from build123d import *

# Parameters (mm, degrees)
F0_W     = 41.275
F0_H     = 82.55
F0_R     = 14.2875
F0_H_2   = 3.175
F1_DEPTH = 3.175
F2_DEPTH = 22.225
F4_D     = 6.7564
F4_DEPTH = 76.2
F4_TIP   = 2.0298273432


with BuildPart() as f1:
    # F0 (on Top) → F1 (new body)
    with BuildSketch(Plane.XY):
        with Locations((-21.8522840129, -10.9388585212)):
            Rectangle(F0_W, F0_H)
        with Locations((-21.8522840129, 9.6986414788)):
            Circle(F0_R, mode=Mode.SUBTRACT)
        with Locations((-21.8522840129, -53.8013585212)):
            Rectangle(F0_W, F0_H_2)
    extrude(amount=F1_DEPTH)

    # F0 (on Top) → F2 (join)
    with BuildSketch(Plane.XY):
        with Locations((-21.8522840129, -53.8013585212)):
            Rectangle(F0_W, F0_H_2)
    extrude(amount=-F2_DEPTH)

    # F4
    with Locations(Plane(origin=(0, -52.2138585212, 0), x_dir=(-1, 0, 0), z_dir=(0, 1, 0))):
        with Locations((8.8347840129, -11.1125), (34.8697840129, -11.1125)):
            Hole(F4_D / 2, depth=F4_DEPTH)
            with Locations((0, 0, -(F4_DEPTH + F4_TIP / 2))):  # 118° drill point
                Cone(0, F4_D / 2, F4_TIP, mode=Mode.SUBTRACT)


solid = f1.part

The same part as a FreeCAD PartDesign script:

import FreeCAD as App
import Part
import Sketcher

V = App.Vector
Q = App.Units.Quantity

doc = App.newDocument("Part")
body = doc.addObject("PartDesign::Body", "Body")

sketch1 = body.newObject("Sketcher::SketchObject", "Sketch")
sketch1.AttachmentSupport = (doc.getObject("XY_Plane"), [""])
sketch1.MapMode = "FlatFace"
sketch1.addGeometry([
    Part.LineSegment(V(-42, 30, 0), V(-42, -55, 0)),
    Part.LineSegment(V(-42, -55, 0), V(-1, -55, 0)),
    Part.LineSegment(V(-1, -55, 0), V(-1, 30, 0)),
    Part.LineSegment(V(-1, 30, 0), V(-42, 30, 0)),
    Part.Circle(V(-22, 10, 0), V(0, 0, 1), 14),
], False)
sketch1.addConstraint([
    Sketcher.Constraint("Coincident", 0, 2, 1, 1),
    Sketcher.Constraint("Coincident", 1, 2, 2, 1),
    Sketcher.Constraint("Coincident", 2, 2, 3, 1),
    Sketcher.Constraint("Coincident", 3, 2, 0, 1),
    Sketcher.Constraint("Vertical", 0),
    Sketcher.Constraint("Horizontal", 1),
    Sketcher.Constraint("Vertical", 2),
    Sketcher.Constraint("Horizontal", 3),
    Sketcher.Constraint("Diameter", 4, Q("1.125 in")),
    Sketcher.Constraint("DistanceX", 1, 1, 1, 2, Q("1.625 in")),
    Sketcher.Constraint("DistanceY", 0, 2, 0, 1, Q("3.375 in")),
    Sketcher.Constraint("DistanceX", 0, 2, 4, 3, Q("0.8125 in")),
    Sketcher.Constraint("DistanceY", 0, 2, 4, 3, Q("2.5625 in")),
    Sketcher.Constraint("DistanceY", -1, 1, 4, 3, 9.698641),
    Sketcher.Constraint("DistanceX", 4, 3, -1, 1, 21.852284),
])
pad1 = body.newObject("PartDesign::Pad", "Pad")
pad1.Profile = sketch1
pad1.Length = Q("0.125 in")

sketch2 = body.newObject("Sketcher::SketchObject", "Sketch001")
sketch2.AttachmentSupport = (doc.getObject("XY_Plane"), [""])
sketch2.MapMode = "FlatFace"
sketch2.addGeometry([
    Part.LineSegment(V(-42.5, -52.2, 0), V(-42.5, -55.4, 0)),
    Part.LineSegment(V(-42.5, -55.4, 0), V(-1.2, -55.4, 0)),
    Part.LineSegment(V(-1.2, -55.4, 0), V(-1.2, -52.2, 0)),
    Part.LineSegment(V(-1.2, -52.2, 0), V(-42.5, -52.2, 0)),
], False)
sketch2.addConstraint([
    Sketcher.Constraint("Coincident", 0, 2, 1, 1),
    Sketcher.Constraint("Coincident", 1, 2, 2, 1),
    Sketcher.Constraint("Coincident", 2, 2, 3, 1),
    Sketcher.Constraint("Coincident", 3, 2, 0, 1),
    Sketcher.Constraint("Vertical", 0),
    Sketcher.Constraint("Horizontal", 1),
    Sketcher.Constraint("Vertical", 2),
    Sketcher.Constraint("Horizontal", 3),
    Sketcher.Constraint("DistanceX", 1, 1, 1, 2, Q("1.625 in")),
    Sketcher.Constraint("DistanceY", 0, 2, 0, 1, Q("0.125 in")),
    Sketcher.Constraint("DistanceY", 0, 2, -1, 1, 55.388859),
    Sketcher.Constraint("DistanceX", 0, 2, -1, 1, 42.489784),
])
pad2 = body.newObject("PartDesign::Pad", "Pad001")
pad2.Profile = sketch2
pad2.Length = Q("0.875 in")
pad2.Reversed = True

sketch3 = body.newObject("Sketcher::SketchObject", "Sketch002")
sketch3.AttachmentSupport = (doc.getObject("XZ_Plane"), [""])
sketch3.MapMode = "FlatFace"
sketch3.AttachmentOffset = App.Placement(V(0, 0, 52.213859), App.Rotation())
sketch3.addGeometry([
    Part.Circle(V(-8.8, -11.1, 0), V(0, 0, 1), 3.4),
    Part.Circle(V(-34.9, -11.1, 0), V(0, 0, 1), 3.4),
], False)
sketch3.addConstraint([
    Sketcher.Constraint("Equal", 0, 1),
    Sketcher.Constraint("Horizontal", 0, 3, 1, 3),
    Sketcher.Constraint("Diameter", 0, Q("0.266 in")),
    Sketcher.Constraint("DistanceY", 0, 3, -1, 1, Q("0.4375 in")),
    Sketcher.Constraint("DistanceX", 1, 3, 0, 3, Q("1.025 in")),
    Sketcher.Constraint("DistanceX", 0, 3, -1, 1, 8.834784),
])
doc.recompute()
hole = body.newObject("PartDesign::Hole", "Hole")
hole.Profile = sketch3
hole.ThreadType = "None"
hole.Diameter = Q("0.266 in")
hole.DepthType = "Dimension"
hole.Depth = Q("3 in")
hole.DrillPoint = "Angled"
hole.DrillPointAngle = 118
hole.Reversed = True

doc.recompute()
